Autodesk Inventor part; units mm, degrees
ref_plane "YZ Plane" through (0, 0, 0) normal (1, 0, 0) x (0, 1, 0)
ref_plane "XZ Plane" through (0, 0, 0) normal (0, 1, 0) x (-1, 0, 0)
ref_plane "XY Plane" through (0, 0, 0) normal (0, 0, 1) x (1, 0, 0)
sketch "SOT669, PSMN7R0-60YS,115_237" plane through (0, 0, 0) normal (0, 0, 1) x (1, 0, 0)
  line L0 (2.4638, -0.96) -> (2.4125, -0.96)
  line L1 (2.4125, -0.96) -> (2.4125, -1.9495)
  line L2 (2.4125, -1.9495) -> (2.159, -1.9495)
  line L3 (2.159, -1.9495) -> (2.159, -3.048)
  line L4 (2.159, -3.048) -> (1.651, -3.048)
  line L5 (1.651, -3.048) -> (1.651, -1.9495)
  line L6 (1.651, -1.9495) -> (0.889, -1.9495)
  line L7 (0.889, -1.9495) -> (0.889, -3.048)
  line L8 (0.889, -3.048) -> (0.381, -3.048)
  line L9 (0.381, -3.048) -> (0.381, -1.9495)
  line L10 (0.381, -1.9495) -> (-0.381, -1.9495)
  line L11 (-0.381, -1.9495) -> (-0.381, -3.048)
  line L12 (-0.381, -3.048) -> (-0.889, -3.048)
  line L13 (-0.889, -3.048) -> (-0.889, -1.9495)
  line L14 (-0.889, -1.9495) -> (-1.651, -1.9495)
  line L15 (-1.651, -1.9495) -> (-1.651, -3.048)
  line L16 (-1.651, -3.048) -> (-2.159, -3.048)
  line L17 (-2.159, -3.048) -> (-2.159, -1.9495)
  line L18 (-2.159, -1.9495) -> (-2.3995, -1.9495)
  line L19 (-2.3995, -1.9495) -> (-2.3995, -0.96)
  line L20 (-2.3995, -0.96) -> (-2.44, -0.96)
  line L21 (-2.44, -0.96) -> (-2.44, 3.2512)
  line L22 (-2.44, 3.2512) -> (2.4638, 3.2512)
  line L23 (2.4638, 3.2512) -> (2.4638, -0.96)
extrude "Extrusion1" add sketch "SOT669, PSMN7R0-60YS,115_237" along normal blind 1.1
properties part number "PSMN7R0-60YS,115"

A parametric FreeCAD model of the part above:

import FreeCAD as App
import Part
import Sketcher
from FreeCAD import Vector
Q = App.Units.Quantity


def add_polygon(sketch, points):
    """Adds a closed chain of lines whose ends are joined by coincident constraints."""
    first, n = sketch.GeometryCount, len(points)
    for a, b in zip(points, points[1:] + points[:1]):
        sketch.addGeometry(Part.LineSegment(App.Vector(*a, 0), App.Vector(*b, 0)), False)
    for i in range(n):
        sketch.addConstraint(Sketcher.Constraint("Coincident", first + i, 2, first + (i + 1) % n, 1))

doc = App.newDocument("Part")
body = doc.addObject("PartDesign::Body", "Body")

# Sketch on XY plane
sketch1 = doc.addObject("Sketcher::SketchObject", "Sketch")
body.addObject(sketch1)
sketch1.AttachmentSupport = (doc.XY_Plane, [""])
sketch1.MapMode = "FlatFace"
add_polygon(sketch1, [(2.413, -0.96), (2.464, -0.96), (2.464, 3.251), (-2.44, 3.251), (-2.44, -0.96), (-2.4, -0.96), (-2.4, -1.95), (-2.159, -1.95), (-2.159, -3.048), (-1.651, -3.048), (-1.651, -1.95), (-0.889, -1.95), (-0.889, -3.048), (-0.381, -3.048), (-0.381, -1.95), (0.381, -1.95), (0.381, -3.048), (0.889, -3.048), (0.889, -1.95), (1.651, -1.95), (1.651, -3.048), (2.159, -3.048), (2.159, -1.95), (2.413, -1.95)])  # lines 0-23
sketch1.addConstraint([
    Sketcher.Constraint("Horizontal", 0),
    Sketcher.Constraint("Vertical", 1),
    Sketcher.Constraint("Horizontal", 2),
    Sketcher.Constraint("Vertical", 3),
    Sketcher.Constraint("Horizontal", 4),
    Sketcher.Constraint("Vertical", 5),
    Sketcher.Constraint("Horizontal", 6),
    Sketcher.Constraint("Vertical", 7),
    Sketcher.Constraint("Horizontal", 8),
    Sketcher.Constraint("Vertical", 9),
    Sketcher.Constraint("Horizontal", 10),
    Sketcher.Constraint("Vertical", 11),
    Sketcher.Constraint("Horizontal", 12),
    Sketcher.Constraint("Vertical", 13),
    Sketcher.Constraint("Horizontal", 14),
    Sketcher.Constraint("Vertical", 15),
    Sketcher.Constraint("Horizontal", 16),
    Sketcher.Constraint("Vertical", 17),
    Sketcher.Constraint("Horizontal", 18),
    Sketcher.Constraint("Vertical", 19),
    Sketcher.Constraint("Horizontal", 20),
    Sketcher.Constraint("Vertical", 21),
    Sketcher.Constraint("Horizontal", 22),
    Sketcher.Constraint("Vertical", 23),
    Sketcher.Constraint("Symmetric", 12, 2, 15, 2, -2),
    Sketcher.Constraint("Symmetric", 10, 2, 17, 2, -2),
    Sketcher.Constraint("Symmetric", 8, 2, 19, 2, -2),
    Sketcher.Constraint("Symmetric", 6, 2, 21, 2, -2),
    Sketcher.Constraint("Horizontal", 0, 2, 3, 2),
    Sketcher.Constraint("Horizontal", 6, 2, 9, 2),
    Sketcher.Constraint("Horizontal", 8, 2, 11, 2),
    Sketcher.Constraint("Horizontal", 10, 2, 13, 2),
    Sketcher.Constraint("Equal", 8, 12),
    Sketcher.Constraint("Equal", 10, 14),
    Sketcher.Constraint("DistanceX", 8, 1, 8, 2, Q("0.02 in")),
    Sketcher.Constraint("DistanceX", 10, 1, 10, 2, Q("0.03 in")),
    Sketcher.Constraint("DistanceY", 7, 2, -1, 1, Q("0.12 in")),
    Sketcher.Constraint("DistanceX", 4, 1, 4, 2, Q("0.0016 in")),
    Sketcher.Constraint("DistanceY", 1, 1, 1, 2, Q("0.1658 in")),
    Sketcher.Constraint("DistanceX", -1, 1, 0, 2, Q("0.097 in")),
    Sketcher.Constraint("DistanceY", -1, 1, 1, 2, Q("0.128 in")),
    Sketcher.Constraint("DistanceX", 0, 1, 0, 2, Q("0.0513 mm")),
    Sketcher.Constraint("DistanceX", 2, 2, 2, 1, Q("4.9038 mm")),
    Sketcher.Constraint("DistanceY", 5, 2, 5, 1, Q("0.9895 mm")),
])
pad1 = doc.addObject("PartDesign::Pad", "Pad")
body.addObject(pad1)
pad1.Profile = sketch1
pad1.Length = Q("0.0433071 in")

doc.recompute()
